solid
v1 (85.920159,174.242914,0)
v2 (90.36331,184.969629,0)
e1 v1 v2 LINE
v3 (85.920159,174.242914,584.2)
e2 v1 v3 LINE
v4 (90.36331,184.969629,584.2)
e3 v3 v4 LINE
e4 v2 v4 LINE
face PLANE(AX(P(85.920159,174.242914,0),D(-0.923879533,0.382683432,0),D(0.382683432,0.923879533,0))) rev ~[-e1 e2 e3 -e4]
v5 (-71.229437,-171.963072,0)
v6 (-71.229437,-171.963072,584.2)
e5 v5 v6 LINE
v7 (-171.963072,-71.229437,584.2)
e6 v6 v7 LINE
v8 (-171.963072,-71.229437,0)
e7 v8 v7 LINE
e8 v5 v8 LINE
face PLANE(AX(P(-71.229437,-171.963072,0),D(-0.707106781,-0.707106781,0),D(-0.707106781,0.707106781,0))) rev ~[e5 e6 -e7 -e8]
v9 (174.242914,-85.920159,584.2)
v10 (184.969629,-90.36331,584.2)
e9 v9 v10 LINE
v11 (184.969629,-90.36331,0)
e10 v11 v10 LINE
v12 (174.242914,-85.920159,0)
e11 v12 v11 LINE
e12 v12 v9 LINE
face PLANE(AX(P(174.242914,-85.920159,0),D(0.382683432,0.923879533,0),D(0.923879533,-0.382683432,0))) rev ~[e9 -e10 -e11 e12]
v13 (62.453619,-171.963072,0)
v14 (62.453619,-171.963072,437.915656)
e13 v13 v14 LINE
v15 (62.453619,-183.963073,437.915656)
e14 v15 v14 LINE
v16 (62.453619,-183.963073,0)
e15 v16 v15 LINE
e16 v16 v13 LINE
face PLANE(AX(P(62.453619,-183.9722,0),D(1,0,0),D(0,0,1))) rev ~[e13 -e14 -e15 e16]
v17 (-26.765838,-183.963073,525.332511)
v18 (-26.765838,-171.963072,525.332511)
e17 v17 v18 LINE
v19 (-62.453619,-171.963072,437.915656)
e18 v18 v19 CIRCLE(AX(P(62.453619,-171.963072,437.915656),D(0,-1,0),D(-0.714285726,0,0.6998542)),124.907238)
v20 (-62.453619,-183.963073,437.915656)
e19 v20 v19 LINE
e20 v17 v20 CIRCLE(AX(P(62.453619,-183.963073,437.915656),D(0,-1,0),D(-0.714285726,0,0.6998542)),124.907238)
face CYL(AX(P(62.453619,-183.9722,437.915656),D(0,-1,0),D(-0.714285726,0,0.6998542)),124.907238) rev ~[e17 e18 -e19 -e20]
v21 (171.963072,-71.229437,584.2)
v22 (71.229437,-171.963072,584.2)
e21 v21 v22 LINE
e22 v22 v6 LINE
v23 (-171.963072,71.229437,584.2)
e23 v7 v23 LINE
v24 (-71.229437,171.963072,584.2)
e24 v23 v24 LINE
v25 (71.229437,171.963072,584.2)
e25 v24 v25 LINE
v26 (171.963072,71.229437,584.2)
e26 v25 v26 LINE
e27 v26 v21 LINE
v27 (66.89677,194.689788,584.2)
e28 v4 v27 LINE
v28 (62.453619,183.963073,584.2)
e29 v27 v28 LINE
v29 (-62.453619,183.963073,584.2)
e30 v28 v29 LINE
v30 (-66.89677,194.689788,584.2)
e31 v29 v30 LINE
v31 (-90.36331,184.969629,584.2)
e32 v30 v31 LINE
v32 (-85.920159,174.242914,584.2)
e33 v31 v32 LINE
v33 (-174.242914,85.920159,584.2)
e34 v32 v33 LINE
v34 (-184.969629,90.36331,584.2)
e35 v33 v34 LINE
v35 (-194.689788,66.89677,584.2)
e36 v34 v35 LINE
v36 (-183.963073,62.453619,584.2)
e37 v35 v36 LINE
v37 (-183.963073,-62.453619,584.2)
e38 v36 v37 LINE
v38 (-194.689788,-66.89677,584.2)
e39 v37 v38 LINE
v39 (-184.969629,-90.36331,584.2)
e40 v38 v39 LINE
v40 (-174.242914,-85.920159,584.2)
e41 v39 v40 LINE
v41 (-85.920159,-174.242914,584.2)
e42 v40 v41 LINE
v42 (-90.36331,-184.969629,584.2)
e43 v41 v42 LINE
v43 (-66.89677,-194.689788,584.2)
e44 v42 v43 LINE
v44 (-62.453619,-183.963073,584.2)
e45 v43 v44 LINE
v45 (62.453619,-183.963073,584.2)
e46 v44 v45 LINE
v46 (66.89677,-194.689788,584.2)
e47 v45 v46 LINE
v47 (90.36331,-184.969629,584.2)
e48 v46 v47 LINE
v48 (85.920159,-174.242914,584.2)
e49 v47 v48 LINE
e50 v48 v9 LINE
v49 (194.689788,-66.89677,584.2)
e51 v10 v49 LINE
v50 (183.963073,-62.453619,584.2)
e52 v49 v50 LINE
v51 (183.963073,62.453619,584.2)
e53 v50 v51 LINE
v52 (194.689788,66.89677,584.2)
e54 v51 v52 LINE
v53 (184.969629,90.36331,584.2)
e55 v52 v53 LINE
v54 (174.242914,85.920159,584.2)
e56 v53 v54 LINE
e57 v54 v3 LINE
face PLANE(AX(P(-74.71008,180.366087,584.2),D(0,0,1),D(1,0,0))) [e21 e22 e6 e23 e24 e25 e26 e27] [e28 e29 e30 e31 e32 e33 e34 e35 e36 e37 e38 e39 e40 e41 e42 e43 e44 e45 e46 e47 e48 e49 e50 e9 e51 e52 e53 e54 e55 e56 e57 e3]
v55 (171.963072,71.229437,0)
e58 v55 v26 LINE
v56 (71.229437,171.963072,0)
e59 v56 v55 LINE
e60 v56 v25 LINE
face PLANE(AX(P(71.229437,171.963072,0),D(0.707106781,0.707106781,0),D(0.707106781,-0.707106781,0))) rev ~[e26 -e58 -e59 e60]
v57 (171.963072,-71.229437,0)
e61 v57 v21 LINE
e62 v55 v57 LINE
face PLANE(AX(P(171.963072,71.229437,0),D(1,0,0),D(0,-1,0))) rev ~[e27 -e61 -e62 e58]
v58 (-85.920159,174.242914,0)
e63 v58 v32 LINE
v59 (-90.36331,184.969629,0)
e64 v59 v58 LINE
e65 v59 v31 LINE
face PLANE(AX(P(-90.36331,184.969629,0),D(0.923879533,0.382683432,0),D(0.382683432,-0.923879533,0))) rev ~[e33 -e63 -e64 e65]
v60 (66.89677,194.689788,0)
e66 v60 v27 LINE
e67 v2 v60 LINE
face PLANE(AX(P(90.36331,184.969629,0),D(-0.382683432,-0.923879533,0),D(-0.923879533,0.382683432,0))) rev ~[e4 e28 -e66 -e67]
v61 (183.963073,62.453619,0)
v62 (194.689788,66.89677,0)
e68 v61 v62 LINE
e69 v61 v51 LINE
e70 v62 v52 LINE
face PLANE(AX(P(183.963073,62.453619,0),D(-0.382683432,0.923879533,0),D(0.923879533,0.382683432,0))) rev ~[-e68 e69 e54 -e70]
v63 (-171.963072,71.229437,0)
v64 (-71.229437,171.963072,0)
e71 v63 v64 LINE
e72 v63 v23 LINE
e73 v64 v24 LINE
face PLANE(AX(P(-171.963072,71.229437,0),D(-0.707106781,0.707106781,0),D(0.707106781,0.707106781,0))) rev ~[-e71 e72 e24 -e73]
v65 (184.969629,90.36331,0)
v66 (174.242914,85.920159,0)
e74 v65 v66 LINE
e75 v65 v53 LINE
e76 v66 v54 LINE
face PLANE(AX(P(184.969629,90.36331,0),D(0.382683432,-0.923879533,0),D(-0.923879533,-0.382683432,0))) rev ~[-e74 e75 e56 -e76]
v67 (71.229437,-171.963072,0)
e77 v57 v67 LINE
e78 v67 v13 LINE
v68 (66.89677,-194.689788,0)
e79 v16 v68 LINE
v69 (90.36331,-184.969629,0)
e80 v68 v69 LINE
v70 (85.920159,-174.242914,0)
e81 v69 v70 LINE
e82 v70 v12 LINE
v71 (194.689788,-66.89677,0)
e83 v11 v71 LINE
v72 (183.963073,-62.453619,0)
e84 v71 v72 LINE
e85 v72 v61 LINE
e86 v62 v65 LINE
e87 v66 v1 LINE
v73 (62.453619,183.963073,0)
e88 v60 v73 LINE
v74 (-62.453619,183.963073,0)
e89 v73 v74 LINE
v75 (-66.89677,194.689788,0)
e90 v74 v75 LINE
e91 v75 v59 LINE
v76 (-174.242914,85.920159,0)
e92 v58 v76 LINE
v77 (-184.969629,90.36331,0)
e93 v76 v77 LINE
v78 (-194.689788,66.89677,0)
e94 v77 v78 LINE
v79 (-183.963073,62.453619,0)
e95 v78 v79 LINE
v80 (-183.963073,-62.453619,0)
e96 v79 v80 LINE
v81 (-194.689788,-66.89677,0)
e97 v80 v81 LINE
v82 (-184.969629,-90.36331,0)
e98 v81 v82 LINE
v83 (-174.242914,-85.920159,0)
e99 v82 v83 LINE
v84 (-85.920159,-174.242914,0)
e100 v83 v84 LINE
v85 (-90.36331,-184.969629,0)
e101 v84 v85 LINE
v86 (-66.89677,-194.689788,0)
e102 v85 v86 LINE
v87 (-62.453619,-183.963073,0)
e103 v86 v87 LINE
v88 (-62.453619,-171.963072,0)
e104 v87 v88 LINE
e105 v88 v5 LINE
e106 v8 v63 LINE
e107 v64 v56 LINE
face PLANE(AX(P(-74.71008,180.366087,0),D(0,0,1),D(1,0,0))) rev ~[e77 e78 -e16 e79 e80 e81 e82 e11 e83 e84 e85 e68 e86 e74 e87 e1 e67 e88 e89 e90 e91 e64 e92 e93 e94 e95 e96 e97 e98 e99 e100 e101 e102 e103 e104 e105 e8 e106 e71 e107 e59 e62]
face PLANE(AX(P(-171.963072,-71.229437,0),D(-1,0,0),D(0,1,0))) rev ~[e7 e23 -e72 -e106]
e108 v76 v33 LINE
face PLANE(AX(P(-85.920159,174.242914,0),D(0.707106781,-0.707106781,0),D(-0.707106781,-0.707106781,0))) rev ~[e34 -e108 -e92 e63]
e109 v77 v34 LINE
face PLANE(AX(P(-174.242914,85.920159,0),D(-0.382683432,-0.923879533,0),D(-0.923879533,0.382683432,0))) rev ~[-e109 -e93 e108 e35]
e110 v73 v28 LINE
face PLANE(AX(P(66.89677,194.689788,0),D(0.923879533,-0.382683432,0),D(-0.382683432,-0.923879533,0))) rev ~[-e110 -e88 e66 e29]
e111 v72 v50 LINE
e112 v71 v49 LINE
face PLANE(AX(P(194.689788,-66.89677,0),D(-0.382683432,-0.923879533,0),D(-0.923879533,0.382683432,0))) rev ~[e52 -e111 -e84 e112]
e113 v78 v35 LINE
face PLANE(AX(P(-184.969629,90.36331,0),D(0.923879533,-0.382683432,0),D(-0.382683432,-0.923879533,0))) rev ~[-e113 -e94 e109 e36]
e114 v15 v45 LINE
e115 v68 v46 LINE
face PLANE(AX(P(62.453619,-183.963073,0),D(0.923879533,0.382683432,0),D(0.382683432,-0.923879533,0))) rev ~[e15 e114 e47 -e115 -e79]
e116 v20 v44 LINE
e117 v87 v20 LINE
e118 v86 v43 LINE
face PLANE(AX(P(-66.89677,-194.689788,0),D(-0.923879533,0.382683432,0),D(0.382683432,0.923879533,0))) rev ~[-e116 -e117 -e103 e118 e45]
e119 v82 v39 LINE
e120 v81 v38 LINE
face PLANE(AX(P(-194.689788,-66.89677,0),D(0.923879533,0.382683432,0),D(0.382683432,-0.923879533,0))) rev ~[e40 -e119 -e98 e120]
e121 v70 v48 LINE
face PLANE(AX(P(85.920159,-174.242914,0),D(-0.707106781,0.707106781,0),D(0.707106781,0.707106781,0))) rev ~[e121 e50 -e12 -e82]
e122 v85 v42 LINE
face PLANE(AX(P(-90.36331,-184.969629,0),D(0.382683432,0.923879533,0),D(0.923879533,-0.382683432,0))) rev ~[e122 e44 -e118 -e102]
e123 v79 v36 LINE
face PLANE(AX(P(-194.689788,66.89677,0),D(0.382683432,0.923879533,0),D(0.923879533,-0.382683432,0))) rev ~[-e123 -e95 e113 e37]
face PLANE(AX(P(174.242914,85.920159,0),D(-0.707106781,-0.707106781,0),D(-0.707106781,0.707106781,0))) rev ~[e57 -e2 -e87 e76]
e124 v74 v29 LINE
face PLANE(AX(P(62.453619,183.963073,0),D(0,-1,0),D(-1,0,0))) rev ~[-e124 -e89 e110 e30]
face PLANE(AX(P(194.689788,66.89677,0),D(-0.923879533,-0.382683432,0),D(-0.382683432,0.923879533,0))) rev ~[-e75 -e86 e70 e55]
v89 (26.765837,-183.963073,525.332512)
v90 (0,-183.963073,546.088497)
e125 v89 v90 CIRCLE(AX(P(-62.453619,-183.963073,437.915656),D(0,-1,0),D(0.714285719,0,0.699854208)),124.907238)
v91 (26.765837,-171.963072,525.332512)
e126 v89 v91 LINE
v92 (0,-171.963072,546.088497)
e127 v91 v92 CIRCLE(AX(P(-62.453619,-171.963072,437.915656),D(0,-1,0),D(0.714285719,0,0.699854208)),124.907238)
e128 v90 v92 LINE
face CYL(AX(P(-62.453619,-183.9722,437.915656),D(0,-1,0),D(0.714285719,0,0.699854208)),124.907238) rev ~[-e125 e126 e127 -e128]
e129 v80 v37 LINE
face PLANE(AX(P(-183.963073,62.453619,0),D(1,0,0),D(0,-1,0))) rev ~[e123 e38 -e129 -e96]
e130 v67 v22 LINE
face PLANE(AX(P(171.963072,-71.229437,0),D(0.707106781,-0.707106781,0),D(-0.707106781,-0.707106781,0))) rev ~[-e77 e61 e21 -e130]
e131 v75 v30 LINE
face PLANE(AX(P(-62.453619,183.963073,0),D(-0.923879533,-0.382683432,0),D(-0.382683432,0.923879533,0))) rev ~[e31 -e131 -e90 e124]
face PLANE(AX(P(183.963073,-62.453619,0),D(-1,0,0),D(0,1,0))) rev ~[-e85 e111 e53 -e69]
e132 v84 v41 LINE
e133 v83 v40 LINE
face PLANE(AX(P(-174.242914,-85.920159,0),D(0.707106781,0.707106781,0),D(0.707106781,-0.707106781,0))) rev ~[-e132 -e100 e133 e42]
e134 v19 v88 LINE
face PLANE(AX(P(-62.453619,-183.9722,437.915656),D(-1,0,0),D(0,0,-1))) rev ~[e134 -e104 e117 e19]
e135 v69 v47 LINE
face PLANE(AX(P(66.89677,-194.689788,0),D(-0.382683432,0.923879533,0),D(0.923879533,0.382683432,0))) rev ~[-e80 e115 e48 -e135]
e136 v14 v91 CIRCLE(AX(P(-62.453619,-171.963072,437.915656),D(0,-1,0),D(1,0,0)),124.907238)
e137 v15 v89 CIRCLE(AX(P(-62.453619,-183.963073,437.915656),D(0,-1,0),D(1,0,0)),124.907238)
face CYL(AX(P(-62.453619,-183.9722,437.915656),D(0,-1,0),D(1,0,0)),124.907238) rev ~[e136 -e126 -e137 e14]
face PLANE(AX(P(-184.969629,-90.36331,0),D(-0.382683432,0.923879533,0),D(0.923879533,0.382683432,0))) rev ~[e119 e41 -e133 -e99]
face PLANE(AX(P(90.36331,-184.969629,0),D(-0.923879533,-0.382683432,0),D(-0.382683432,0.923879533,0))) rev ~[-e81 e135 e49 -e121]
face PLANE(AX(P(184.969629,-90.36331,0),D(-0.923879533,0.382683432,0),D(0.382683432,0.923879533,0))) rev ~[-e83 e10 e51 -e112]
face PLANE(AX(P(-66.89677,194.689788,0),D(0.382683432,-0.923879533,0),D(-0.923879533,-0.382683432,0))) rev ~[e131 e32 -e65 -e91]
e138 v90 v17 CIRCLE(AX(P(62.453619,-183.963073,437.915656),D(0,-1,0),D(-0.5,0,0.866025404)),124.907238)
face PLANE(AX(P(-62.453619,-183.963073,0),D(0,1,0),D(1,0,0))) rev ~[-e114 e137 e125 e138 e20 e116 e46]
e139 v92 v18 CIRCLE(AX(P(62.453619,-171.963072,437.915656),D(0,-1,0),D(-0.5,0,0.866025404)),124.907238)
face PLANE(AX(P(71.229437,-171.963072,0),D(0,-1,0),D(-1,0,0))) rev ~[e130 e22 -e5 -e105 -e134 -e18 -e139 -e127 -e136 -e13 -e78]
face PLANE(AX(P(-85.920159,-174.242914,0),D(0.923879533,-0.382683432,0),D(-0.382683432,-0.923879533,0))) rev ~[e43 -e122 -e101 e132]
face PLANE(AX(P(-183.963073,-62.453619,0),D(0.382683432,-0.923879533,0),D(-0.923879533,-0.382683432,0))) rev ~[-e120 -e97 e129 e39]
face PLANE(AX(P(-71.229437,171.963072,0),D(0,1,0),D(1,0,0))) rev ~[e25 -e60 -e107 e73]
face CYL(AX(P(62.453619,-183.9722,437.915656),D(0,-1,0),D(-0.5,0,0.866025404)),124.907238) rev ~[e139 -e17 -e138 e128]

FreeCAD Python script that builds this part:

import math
import FreeCAD as App
import Part
import Sketcher
Q = App.Units.Quantity

doc = App.newDocument("Part")
params = doc.addObject("Spreadsheet::Sheet", "Params")
for row, (alias, value) in enumerate([
    ("sketch1_length", "1 in"),
    ("pad1_length", "23 in"),
    ("pocket1_length", "1 in"),
], start=1):
    params.set(f"A{row}", alias)
    params.set(f"B{row}", "=" + value)
    params.setAlias(f"B{row}", alias)

body = doc.addObject("PartDesign::Body", "Body")

sketch1 = body.newObject("Sketcher::SketchObject", "Sketch")
sketch1.AttachmentSupport = (doc.getObject("XY_Plane"), [""])
sketch1.MapMode = "FlatFace"
sketch1.addGeometry([
    Part.LineSegment(App.Vector(-86, 174, 0), App.Vector(-174, 86, 0)),
    Part.LineSegment(App.Vector(-174, 86, 0), App.Vector(-185, 90, 0)),
    Part.LineSegment(App.Vector(-185, 90, 0), App.Vector(-195, 67, 0)),
    Part.LineSegment(App.Vector(-195, 67, 0), App.Vector(-184, 62, 0)),
    Part.LineSegment(App.Vector(-184, 62, 0), App.Vector(-184, -62, 0)),
    Part.LineSegment(App.Vector(-184, -62, 0), App.Vector(-195, -67, 0)),
    Part.LineSegment(App.Vector(-195, -67, 0), App.Vector(-185, -90, 0)),
    Part.LineSegment(App.Vector(-185, -90, 0), App.Vector(-174, -86, 0)),
    Part.LineSegment(App.Vector(-174, -86, 0), App.Vector(-86, -174, 0)),
    Part.LineSegment(App.Vector(-86, -174, 0), App.Vector(-90, -185, 0)),
    Part.LineSegment(App.Vector(-90, -185, 0), App.Vector(-67, -195, 0)),
    Part.LineSegment(App.Vector(-67, -195, 0), App.Vector(-62, -184, 0)),
    Part.LineSegment(App.Vector(-62, -184, 0), App.Vector(62, -184, 0)),
    Part.LineSegment(App.Vector(62, -184, 0), App.Vector(67, -195, 0)),
    Part.LineSegment(App.Vector(67, -195, 0), App.Vector(90, -185, 0)),
    Part.LineSegment(App.Vector(90, -185, 0), App.Vector(86, -174, 0)),
    Part.LineSegment(App.Vector(86, -174, 0), App.Vector(174, -86, 0)),
    Part.LineSegment(App.Vector(174, -86, 0), App.Vector(185, -90, 0)),
    Part.LineSegment(App.Vector(185, -90, 0), App.Vector(195, -67, 0)),
    Part.LineSegment(App.Vector(195, -67, 0), App.Vector(184, -62, 0)),
    Part.LineSegment(App.Vector(184, -62, 0), App.Vector(184, 62, 0)),
    Part.LineSegment(App.Vector(184, 62, 0), App.Vector(195, 67, 0)),
    Part.LineSegment(App.Vector(195, 67, 0), App.Vector(185, 90, 0)),
    Part.LineSegment(App.Vector(185, 90, 0), App.Vector(174, 86, 0)),
    Part.LineSegment(App.Vector(174, 86, 0), App.Vector(86, 174, 0)),
    Part.LineSegment(App.Vector(86, 174, 0), App.Vector(90, 185, 0)),
    Part.LineSegment(App.Vector(90, 185, 0), App.Vector(67, 195, 0)),
    Part.LineSegment(App.Vector(67, 195, 0), App.Vector(62, 184, 0)),
    Part.LineSegment(App.Vector(62, 184, 0), App.Vector(-62, 184, 0)),
    Part.LineSegment(App.Vector(-62, 184, 0), App.Vector(-67, 195, 0)),
    Part.LineSegment(App.Vector(-67, 195, 0), App.Vector(-90, 185, 0)),
    Part.LineSegment(App.Vector(-90, 185, 0), App.Vector(-86, 174, 0)),
    Part.LineSegment(App.Vector(172, -71, 0), App.Vector(71, -172, 0)),
    Part.LineSegment(App.Vector(71, -172, 0), App.Vector(-71, -172, 0)),
    Part.LineSegment(App.Vector(-71, -172, 0), App.Vector(-172, -71, 0)),
    Part.LineSegment(App.Vector(-172, -71, 0), App.Vector(-172, 71, 0)),
    Part.LineSegment(App.Vector(-172, 71, 0), App.Vector(-71, 172, 0)),
    Part.LineSegment(App.Vector(-71, 172, 0), App.Vector(71, 172, 0)),
    Part.LineSegment(App.Vector(71, 172, 0), App.Vector(172, 71, 0)),
    Part.LineSegment(App.Vector(172, 71, 0), App.Vector(172, -71, 0)),
], False)
sketch1.addConstraint([
    Sketcher.Constraint("Coincident", 0, 2, 1, 1),
    Sketcher.Constraint("Coincident", 1, 2, 2, 1),
    Sketcher.Constraint("Coincident", 2, 2, 3, 1),
    Sketcher.Constraint("Coincident", 3, 2, 4, 1),
    Sketcher.Constraint("Coincident", 4, 2, 5, 1),
    Sketcher.Constraint("Coincident", 5, 2, 6, 1),
    Sketcher.Constraint("Coincident", 6, 2, 7, 1),
    Sketcher.Constraint("Coincident", 7, 2, 8, 1),
    Sketcher.Constraint("Coincident", 8, 2, 9, 1),
    Sketcher.Constraint("Coincident", 9, 2, 10, 1),
    Sketcher.Constraint("Coincident", 10, 2, 11, 1),
    Sketcher.Constraint("Coincident", 11, 2, 12, 1),
    Sketcher.Constraint("Coincident", 12, 2, 13, 1),
    Sketcher.Constraint("Coincident", 13, 2, 14, 1),
    Sketcher.Constraint("Coincident", 14, 2, 15, 1),
    Sketcher.Constraint("Coincident", 15, 2, 16, 1),
    Sketcher.Constraint("Coincident", 16, 2, 17, 1),
    Sketcher.Constraint("Coincident", 17, 2, 18, 1),
    Sketcher.Constraint("Coincident", 18, 2, 19, 1),
    Sketcher.Constraint("Coincident", 19, 2, 20, 1),
    Sketcher.Constraint("Coincident", 20, 2, 21, 1),
    Sketcher.Constraint("Coincident", 21, 2, 22, 1),
    Sketcher.Constraint("Coincident", 22, 2, 23, 1),
    Sketcher.Constraint("Coincident", 23, 2, 24, 1),
    Sketcher.Constraint("Coincident", 24, 2, 25, 1),
    Sketcher.Constraint("Coincident", 25, 2, 26, 1),
    Sketcher.Constraint("Coincident", 26, 2, 27, 1),
    Sketcher.Constraint("Coincident", 27, 2, 28, 1),
    Sketcher.Constraint("Coincident", 28, 2, 29, 1),
    Sketcher.Constraint("Coincident", 29, 2, 30, 1),
    Sketcher.Constraint("Coincident", 30, 2, 31, 1),
    Sketcher.Constraint("Coincident", 31, 2, 0, 1),
    Sketcher.Constraint("Coincident", 32, 2, 33, 1),
    Sketcher.Constraint("Coincident", 33, 2, 34, 1),
    Sketcher.Constraint("Coincident", 34, 2, 35, 1),
    Sketcher.Constraint("Coincident", 35, 2, 36, 1),
    Sketcher.Constraint("Coincident", 36, 2, 37, 1),
    Sketcher.Constraint("Coincident", 37, 2, 38, 1),
    Sketcher.Constraint("Coincident", 38, 2, 39, 1),
    Sketcher.Constraint("Coincident", 39, 2, 32, 1),
    Sketcher.Constraint("Vertical", 4),
    Sketcher.Constraint("Horizontal", 12),
    Sketcher.Constraint("Vertical", 20),
    Sketcher.Constraint("Horizontal", 28),
    Sketcher.Constraint("Horizontal", 33),
    Sketcher.Constraint("Vertical", 35),
    Sketcher.Constraint("Horizontal", 37),
    Sketcher.Constraint("Vertical", 39),
    Sketcher.Constraint("Symmetric", 0, 2, 16, 2, -1, 1),
    Sketcher.Constraint("Symmetric", 1, 2, 17, 2, -1, 1),
    Sketcher.Constraint("Symmetric", 2, 2, 18, 2, -1, 1),
    Sketcher.Constraint("Symmetric", 3, 2, 19, 2, -1, 1),
    Sketcher.Constraint("Symmetric", 5, 2, 21, 2, -1, 1),
    Sketcher.Constraint("Symmetric", 6, 2, 22, 2, -1, 1),
    Sketcher.Constraint("Symmetric", 7, 2, 23, 2, -1, 1),
    Sketcher.Constraint("Symmetric", 8, 2, 24, 2, -1, 1),
    Sketcher.Constraint("Symmetric", 9, 2, 25, 2, -1, 1),
    Sketcher.Constraint("Symmetric", 10, 2, 26, 2, -1, 1),
    Sketcher.Constraint("Symmetric", 11, 2, 27, 2, -1, 1),
    Sketcher.Constraint("Symmetric", 13, 2, 29, 2, -1, 1),
    Sketcher.Constraint("Symmetric", 14, 2, 30, 2, -1, 1),
    Sketcher.Constraint("Symmetric", 15, 2, 31, 2, -1, 1),
    Sketcher.Constraint("Symmetric", 32, 2, 36, 2, -1, 1),
    Sketcher.Constraint("Symmetric", 34, 2, 38, 2, -1, 1),
    Sketcher.Constraint("Symmetric", 10, 2, 13, 2, -2),
    Sketcher.Constraint("Symmetric", 9, 2, 14, 2, -2),
    Sketcher.Constraint("Symmetric", 8, 2, 15, 2, -2),
    Sketcher.Constraint("Symmetric", 7, 2, 16, 2, -2),
    Sketcher.Constraint("Symmetric", 6, 2, 17, 2, -2),
    Sketcher.Constraint("Symmetric", 5, 2, 18, 2, -2),
    Sketcher.Constraint("Perpendicular", 1, 2),
    Sketcher.Constraint("Perpendicular", 2, 3),
    Sketcher.Constraint("Perpendicular", 5, 6),
    Sketcher.Constraint("Perpendicular", 0, 8),
    Sketcher.Constraint("Perpendicular", 3, 9),
    Sketcher.Constraint("Perpendicular", 9, 10),
    Sketcher.Constraint("Perpendicular", 10, 11),
    Sketcher.Constraint("Perpendicular", 7, 13),
    Sketcher.Constraint("Perpendicular", 15, 21),
    Sketcher.Constraint("Perpendicular", 23, 29),
    Sketcher.Constraint("Perpendicular", 24, 32),
    Sketcher.Constraint("Perpendicular", 32, 34),
    Sketcher.Constraint("Perpendicular", 34, 36),
    Sketcher.Constraint("Perpendicular", 36, 38),
    Sketcher.Constraint("Horizontal", 35, 2, 38, 2),
    Sketcher.Constraint("Equal", 28, 4),
    Sketcher.Constraint("Equal", 37, 35),
    Sketcher.Constraint("Equal", 1, 3),
    Sketcher.Constraint("Equal", 7, 9),
    Sketcher.Constraint("Equal", 6, 10),
    Sketcher.Constraint("Equal", 9, 11),
    Sketcher.Constraint("Distance", 2, Q("1 in")),
    Sketcher.Constraint("Angle", 1, Q("157.5 deg")),
    Sketcher.Constraint("DistanceX", 12, 1, 12, 2, 124.907238),
    Sketcher.Constraint("DistanceY", 12, 2, 32, 2, 12.000001),
    Sketcher.Constraint("Distance", 0, 124.907238),
    Sketcher.Constraint("DistanceX", 33, 2, 33, 1, 142.458873),
    Sketcher.Constraint("DistanceX", 1, 2, -1, 1, 184.969629),
])
sketch1.setExpression("Constraints[91]", "Params.sketch1_length")
pad1 = body.newObject("PartDesign::Pad", "Pad")
pad1.Profile = sketch1
pad1.setExpression("Length", "Params.pad1_length")

sketch2 = body.newObject("Sketcher::SketchObject", "Sketch001")
sketch2.AttachmentSupport = (doc.getObject("XZ_Plane"), [""])
sketch2.MapMode = "FlatFace"
sketch2.AttachmentOffset = App.Placement(App.Vector(0, 0, 7.243 * 25.4), App.Rotation())
sketch2.addGeometry([
    Part.ArcOfCircle(Part.Circle(App.Vector(-62, 438, 0), App.Vector(0, 0, 1), 125), math.radians(0), math.radians(44)),
    Part.ArcOfCircle(Part.Circle(App.Vector(-62, 438, 0), App.Vector(0, 0, 1), 125), math.radians(44.42), math.radians(60)),
    Part.ArcOfCircle(Part.Circle(App.Vector(62, 438, 0), App.Vector(0, 0, 1), 125), math.radians(120), math.radians(135.58)),
    Part.ArcOfCircle(Part.Circle(App.Vector(62, 438, 0), App.Vector(0, 0, 1), 125), math.radians(136), math.radians(180)),
    Part.LineSegment(App.Vector(-62, 438, 0), App.Vector(-62, 0, 0)),
    Part.LineSegment(App.Vector(-62, 0, 0), App.Vector(62, 0, 0)),
    Part.LineSegment(App.Vector(62, 0, 0), App.Vector(62, 438, 0)),
], False)
sketch2.addConstraint([
    Sketcher.Constraint("Tangent", 0, 2, 1, 1),
    Sketcher.Constraint("Coincident", 1, 2, 2, 1),
    Sketcher.Constraint("Tangent", 2, 2, 3, 1),
    Sketcher.Constraint("Tangent", 3, 2, 4, 1),
    Sketcher.Constraint("Coincident", 4, 2, 5, 1),
    Sketcher.Constraint("Coincident", 5, 2, 6, 1),
    Sketcher.Constraint("Tangent", 6, 2, 0, 1),
    Sketcher.Constraint("Vertical", 4),
    Sketcher.Constraint("Horizontal", 5),
    Sketcher.Constraint("Vertical", 6),
    Sketcher.Constraint("Coincident", 3, 2, 0, 3),
    Sketcher.Constraint("Coincident", 6, 2, 2, 3),
    Sketcher.Constraint("Equal", 0, 1),
    Sketcher.Constraint("Symmetric", 4, 2, 5, 2, -1, 1),
    Sketcher.Constraint("Horizontal", 0, 2, 2, 2),
    Sketcher.Constraint("Radius", 0, 124.907238),
    Sketcher.Constraint("DistanceY", 4, 2, 4, 1, 437.915656),
    Sketcher.Constraint("DistanceX", 2, 2, -1, 1, 26.765838),
])
pocket1 = body.newObject("PartDesign::Pocket", "Pocket")
pocket1.Profile = sketch2
pocket1.setExpression("Length", "Params.pocket1_length")

doc.recompute()
